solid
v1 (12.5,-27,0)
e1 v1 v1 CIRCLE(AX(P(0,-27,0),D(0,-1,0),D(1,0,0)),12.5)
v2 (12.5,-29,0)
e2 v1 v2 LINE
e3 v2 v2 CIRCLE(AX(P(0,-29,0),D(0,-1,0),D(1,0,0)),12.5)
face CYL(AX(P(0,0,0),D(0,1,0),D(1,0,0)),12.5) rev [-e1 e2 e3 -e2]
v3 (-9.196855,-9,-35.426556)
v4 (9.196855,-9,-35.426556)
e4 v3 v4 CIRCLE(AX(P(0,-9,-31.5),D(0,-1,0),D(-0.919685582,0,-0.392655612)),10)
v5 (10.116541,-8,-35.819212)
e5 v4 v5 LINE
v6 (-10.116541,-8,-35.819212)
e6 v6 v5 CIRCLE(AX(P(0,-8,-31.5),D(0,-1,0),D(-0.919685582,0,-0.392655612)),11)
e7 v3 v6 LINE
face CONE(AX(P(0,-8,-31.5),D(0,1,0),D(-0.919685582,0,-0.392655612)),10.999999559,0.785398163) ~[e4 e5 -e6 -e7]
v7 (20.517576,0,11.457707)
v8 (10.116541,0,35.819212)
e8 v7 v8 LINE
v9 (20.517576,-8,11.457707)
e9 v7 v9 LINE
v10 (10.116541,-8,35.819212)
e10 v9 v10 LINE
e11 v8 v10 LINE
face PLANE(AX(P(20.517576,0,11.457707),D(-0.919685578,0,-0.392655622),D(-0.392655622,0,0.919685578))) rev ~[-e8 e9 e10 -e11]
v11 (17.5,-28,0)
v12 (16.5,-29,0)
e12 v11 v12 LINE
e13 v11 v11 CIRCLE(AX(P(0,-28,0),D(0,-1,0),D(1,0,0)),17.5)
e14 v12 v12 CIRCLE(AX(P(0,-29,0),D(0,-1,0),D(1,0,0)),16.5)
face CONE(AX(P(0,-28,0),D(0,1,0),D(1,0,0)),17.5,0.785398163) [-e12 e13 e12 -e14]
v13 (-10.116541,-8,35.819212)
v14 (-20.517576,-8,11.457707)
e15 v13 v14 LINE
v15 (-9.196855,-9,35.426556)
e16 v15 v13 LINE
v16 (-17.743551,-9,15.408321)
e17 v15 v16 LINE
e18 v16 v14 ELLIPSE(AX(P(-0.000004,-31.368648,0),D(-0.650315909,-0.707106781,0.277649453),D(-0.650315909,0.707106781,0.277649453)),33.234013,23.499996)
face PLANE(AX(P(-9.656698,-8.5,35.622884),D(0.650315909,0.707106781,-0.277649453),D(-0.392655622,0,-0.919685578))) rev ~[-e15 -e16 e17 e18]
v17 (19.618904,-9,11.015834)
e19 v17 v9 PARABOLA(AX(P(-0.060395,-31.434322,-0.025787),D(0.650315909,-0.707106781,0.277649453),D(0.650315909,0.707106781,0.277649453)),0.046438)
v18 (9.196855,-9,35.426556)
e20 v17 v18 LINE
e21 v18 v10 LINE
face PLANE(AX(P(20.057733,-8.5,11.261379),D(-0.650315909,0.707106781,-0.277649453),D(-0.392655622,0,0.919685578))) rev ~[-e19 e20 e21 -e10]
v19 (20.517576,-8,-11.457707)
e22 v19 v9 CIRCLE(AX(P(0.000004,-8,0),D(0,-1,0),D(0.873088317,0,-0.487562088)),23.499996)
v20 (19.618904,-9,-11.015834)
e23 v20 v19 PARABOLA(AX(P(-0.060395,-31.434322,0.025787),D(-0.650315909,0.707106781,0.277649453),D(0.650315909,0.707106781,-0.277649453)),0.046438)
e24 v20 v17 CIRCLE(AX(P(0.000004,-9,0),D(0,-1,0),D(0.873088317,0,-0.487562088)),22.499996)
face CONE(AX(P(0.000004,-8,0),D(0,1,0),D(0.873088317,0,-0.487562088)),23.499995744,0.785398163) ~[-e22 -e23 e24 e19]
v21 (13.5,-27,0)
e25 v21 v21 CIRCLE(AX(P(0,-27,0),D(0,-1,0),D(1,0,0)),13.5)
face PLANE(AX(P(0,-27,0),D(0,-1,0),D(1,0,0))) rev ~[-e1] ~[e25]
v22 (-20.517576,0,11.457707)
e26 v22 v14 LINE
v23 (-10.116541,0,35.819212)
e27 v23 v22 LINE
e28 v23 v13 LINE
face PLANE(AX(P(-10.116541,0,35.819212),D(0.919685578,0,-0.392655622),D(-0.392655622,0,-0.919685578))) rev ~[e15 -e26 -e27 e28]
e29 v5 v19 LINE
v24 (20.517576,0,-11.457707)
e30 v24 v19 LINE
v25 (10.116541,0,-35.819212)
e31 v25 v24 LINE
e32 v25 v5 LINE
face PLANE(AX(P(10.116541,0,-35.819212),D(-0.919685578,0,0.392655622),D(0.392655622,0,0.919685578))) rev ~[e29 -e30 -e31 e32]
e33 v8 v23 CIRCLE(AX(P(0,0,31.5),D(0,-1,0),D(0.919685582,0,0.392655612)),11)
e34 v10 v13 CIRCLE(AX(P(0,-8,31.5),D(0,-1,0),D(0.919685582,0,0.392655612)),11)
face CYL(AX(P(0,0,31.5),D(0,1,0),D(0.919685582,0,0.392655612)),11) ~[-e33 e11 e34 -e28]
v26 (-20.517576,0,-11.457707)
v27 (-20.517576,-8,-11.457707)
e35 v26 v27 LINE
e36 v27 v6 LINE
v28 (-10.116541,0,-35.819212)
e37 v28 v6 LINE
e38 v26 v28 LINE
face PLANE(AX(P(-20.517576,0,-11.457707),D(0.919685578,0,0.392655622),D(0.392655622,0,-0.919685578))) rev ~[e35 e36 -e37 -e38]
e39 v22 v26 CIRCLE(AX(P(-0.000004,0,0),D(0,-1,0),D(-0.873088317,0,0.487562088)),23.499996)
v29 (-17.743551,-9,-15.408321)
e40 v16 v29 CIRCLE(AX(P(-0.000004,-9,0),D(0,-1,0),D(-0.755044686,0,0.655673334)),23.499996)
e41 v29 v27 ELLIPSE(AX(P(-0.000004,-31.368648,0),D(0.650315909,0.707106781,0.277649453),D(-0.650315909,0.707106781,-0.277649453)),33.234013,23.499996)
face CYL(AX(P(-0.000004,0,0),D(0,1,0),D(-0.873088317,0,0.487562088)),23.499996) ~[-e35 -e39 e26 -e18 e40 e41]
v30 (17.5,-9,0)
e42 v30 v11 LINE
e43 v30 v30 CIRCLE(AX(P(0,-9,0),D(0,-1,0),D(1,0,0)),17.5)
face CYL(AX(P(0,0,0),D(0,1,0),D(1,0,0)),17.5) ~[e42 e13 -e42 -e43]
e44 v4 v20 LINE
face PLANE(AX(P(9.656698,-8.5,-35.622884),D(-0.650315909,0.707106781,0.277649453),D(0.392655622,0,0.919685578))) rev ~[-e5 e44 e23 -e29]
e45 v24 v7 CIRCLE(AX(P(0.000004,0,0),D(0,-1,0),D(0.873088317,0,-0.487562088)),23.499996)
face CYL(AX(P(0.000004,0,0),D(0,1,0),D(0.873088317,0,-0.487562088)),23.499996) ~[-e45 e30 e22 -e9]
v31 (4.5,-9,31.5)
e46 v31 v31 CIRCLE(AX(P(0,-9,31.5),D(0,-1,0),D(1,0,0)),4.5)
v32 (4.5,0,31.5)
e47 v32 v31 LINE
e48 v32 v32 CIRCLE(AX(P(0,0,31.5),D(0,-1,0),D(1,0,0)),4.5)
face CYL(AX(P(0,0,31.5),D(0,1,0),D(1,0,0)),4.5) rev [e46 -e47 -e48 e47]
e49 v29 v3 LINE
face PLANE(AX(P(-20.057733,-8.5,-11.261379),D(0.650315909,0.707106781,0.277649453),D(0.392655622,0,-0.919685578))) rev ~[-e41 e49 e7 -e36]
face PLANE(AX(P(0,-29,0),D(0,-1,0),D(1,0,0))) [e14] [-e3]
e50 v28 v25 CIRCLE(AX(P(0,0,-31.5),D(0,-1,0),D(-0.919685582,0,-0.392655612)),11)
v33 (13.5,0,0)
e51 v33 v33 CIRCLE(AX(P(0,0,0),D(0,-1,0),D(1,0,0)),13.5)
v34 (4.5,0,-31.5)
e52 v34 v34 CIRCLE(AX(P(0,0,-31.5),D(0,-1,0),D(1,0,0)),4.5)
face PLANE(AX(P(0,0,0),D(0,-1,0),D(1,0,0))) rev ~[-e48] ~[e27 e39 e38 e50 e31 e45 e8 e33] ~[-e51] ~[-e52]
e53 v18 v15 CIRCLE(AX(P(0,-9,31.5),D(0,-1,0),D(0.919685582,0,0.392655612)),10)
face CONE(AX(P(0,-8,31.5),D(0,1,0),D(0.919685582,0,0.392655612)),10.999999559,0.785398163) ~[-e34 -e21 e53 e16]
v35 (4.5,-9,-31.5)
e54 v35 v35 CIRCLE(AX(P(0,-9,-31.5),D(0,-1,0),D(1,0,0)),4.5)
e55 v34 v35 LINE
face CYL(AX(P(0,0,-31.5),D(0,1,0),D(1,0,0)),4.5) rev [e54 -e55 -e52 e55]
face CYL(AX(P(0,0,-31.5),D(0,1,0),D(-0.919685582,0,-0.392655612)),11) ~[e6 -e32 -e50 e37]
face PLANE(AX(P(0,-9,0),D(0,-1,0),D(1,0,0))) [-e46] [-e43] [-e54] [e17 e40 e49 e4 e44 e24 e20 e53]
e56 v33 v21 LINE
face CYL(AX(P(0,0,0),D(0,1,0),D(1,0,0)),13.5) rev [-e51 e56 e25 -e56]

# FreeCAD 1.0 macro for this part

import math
import FreeCAD as App
import Part
import Sketcher

V = App.Vector
Q = App.Units.Quantity


def edges_at(feature, points):
    """Names of the edges that pass closest to the given points."""
    edges = feature.Shape.Edges
    near = lambda p: min(range(len(edges)), key=lambda i: edges[i].distToShape(Part.Vertex(*p))[0])
    return sorted({f"Edge{near(p) + 1}" for p in points})

doc = App.newDocument("Part")
params = doc.addObject("Spreadsheet::Sheet", "Params")
for row, (alias, value) in enumerate([
    ("sketch1_diameter", "9 mm"),
    ("sketch1_diameter2", "35 mm"),
    ("sketch1_radius", "11 mm"),
    ("pad1_length", "9 mm"),
    ("sketch2_diameter", "35 mm"),
    ("sketch2_diameter2", "25 mm"),
    ("pad2_length", "29 mm"),
    ("sketch3_diameter", "27 mm"),
    ("sketch3_diameter2", "25 mm"),
    ("pocket1_length", "27 mm"),
    ("chamfer_size", "1 mm"),
], start=1):
    params.set(f"A{row}", alias)
    params.set(f"B{row}", "=" + value)
    params.setAlias(f"B{row}", alias)

body = doc.addObject("PartDesign::Body", "Body")

sketch1 = body.newObject("Sketcher::SketchObject", "Sketch")
sketch1.AttachmentSupport = (doc.getObject("XZ_Plane"), [""])
sketch1.MapMode = "FlatFace"
sketch1.addGeometry([
    Part.LineSegment(V(10.1, -35.8, 0), V(20.5, -11.5, 0)),
    Part.ArcOfCircle(Part.Circle(V(0, 0, 0), V(0, 0, 1), 23.5), math.radians(-29), math.radians(29)),
    Part.LineSegment(V(20.5, 11.5, 0), V(10.1, 35.8, 0)),
    Part.ArcOfCircle(Part.Circle(V(0, 31.5, 0), V(0, 0, 1), 11), math.radians(23), math.radians(157)),
    Part.LineSegment(V(-10.1, 35.8, 0), V(-20.5, 11.5, 0)),
    Part.ArcOfCircle(Part.Circle(V(0, 0, 0), V(0, 0, 1), 23.5), math.radians(151), math.radians(209)),
    Part.LineSegment(V(-20.5, -11.5, 0), V(-10.1, -35.8, 0)),
    Part.ArcOfCircle(Part.Circle(V(0, -31.5, 0), V(0, 0, 1), 11), math.radians(-157), math.radians(-23)),
    Part.Circle(V(0, -31.5, 0), V(0, 0, 1), 4.5),
    Part.Circle(V(0, 0, 0), V(0, 0, 1), 17.5),
    Part.Circle(V(0, 31.5, 0), V(0, 0, 1), 4.5),
], False)
sketch1.addConstraint([
    Sketcher.Constraint("Coincident", 0, 2, 1, 1),
    Sketcher.Constraint("Coincident", 1, 2, 2, 1),
    Sketcher.Constraint("Tangent", 2, 2, 3, 1),
    Sketcher.Constraint("Tangent", 3, 2, 4, 1),
    Sketcher.Constraint("Coincident", 4, 2, 5, 1),
    Sketcher.Constraint("Coincident", 5, 2, 6, 1),
    Sketcher.Constraint("Tangent", 6, 2, 7, 1),
    Sketcher.Constraint("Tangent", 7, 2, 0, 1),
    Sketcher.Constraint("Coincident", 1, 3, -1, 1),
    Sketcher.Constraint("Coincident", 5, 3, -1, 1),
    Sketcher.Constraint("Coincident", 9, 3, -1, 1),
    Sketcher.Constraint("Coincident", 8, 3, 7, 3),
    Sketcher.Constraint("Coincident", 10, 3, 3, 3),
    Sketcher.Constraint("Equal", 1, 5),
    Sketcher.Constraint("Equal", 3, 7),
    Sketcher.Constraint("Equal", 8, 10),
    Sketcher.Constraint("Symmetric", 3, 3, 7, 3, -1, 1),
    Sketcher.Constraint("Symmetric", 2, 2, 3, 2, -2),
    Sketcher.Constraint("Parallel", 0, 4),
    Sketcher.Constraint("Parallel", 2, 6),
    Sketcher.Constraint("Diameter", 8, Q("9 mm")),
    Sketcher.Constraint("Diameter", 9, Q("35 mm")),
    Sketcher.Constraint("Radius", 3, Q("11 mm")),
    Sketcher.Constraint("DistanceY", 7, 3, 3, 3, Q("63.000001 mm")),
    Sketcher.Constraint("Radius", 1, Q("23.499996 mm")),
    Sketcher.Constraint("Distance", 0, Q("26.48895 mm")),
])
sketch1.setExpression("Constraints[20]", "Params.sketch1_diameter")
sketch1.setExpression("Constraints[21]", "Params.sketch1_diameter2")
sketch1.setExpression("Constraints[22]", "Params.sketch1_radius")
pad1 = body.newObject("PartDesign::Pad", "Pad")
pad1.Profile = sketch1
pad1.setExpression("Length", "Params.pad1_length")

sketch2 = body.newObject("Sketcher::SketchObject", "Sketch001")
sketch2.AttachmentSupport = (doc.getObject("XZ_Plane"), [""])
sketch2.MapMode = "FlatFace"
sketch2.addGeometry([
    Part.Circle(V(0, 0, 0), V(0, 0, 1), 18),
    Part.Circle(V(0, 0, 0), V(0, 0, 1), 12),
], False)
sketch2.addConstraint([
    Sketcher.Constraint("Coincident", 0, 3, -1, 1),
    Sketcher.Constraint("Coincident", 1, 3, -1, 1),
    Sketcher.Constraint("Diameter", 0, Q("35 mm")),
    Sketcher.Constraint("Diameter", 1, Q("25 mm")),
])
sketch2.setExpression("Constraints[2]", "Params.sketch2_diameter")
sketch2.setExpression("Constraints[3]", "Params.sketch2_diameter2")
pad2 = body.newObject("PartDesign::Pad", "Pad001")
pad2.Profile = sketch2
pad2.setExpression("Length", "Params.pad2_length")

sketch3 = body.newObject("Sketcher::SketchObject", "Sketch002")
sketch3.AttachmentSupport = (doc.getObject("XZ_Plane"), [""])
sketch3.MapMode = "FlatFace"
sketch3.addGeometry([
    Part.Circle(V(0, 0, 0), V(0, 0, 1), 14),
    Part.Circle(V(0, 0, 0), V(0, 0, 1), 12),
], False)
sketch3.addConstraint([
    Sketcher.Constraint("Coincident", 0, 3, -1, 1),
    Sketcher.Constraint("Coincident", 1, 3, -1, 1),
    Sketcher.Constraint("Diameter", 0, Q("27 mm")),
    Sketcher.Constraint("Diameter", 1, Q("25 mm")),
])
sketch3.setExpression("Constraints[2]", "Params.sketch3_diameter")
sketch3.setExpression("Constraints[3]", "Params.sketch3_diameter2")
pocket1 = body.newObject("PartDesign::Pocket", "Pocket")
pocket1.Profile = sketch3
pocket1.setExpression("Length", "Params.pocket1_length")
pocket1.Reversed = True
doc.recompute()

chamfer = body.newObject("PartDesign::Chamfer", "Chamfer")
chamfer.Base = (pocket1, edges_at(pocket1, [
    (-17.5, -29, 0),
    (23.5, -9, 0),
    (15.317, -9, -23.638),
    (15.317, -9, 23.638),
]))
chamfer.setExpression("Size", "Params.chamfer_size")

doc.recompute()
